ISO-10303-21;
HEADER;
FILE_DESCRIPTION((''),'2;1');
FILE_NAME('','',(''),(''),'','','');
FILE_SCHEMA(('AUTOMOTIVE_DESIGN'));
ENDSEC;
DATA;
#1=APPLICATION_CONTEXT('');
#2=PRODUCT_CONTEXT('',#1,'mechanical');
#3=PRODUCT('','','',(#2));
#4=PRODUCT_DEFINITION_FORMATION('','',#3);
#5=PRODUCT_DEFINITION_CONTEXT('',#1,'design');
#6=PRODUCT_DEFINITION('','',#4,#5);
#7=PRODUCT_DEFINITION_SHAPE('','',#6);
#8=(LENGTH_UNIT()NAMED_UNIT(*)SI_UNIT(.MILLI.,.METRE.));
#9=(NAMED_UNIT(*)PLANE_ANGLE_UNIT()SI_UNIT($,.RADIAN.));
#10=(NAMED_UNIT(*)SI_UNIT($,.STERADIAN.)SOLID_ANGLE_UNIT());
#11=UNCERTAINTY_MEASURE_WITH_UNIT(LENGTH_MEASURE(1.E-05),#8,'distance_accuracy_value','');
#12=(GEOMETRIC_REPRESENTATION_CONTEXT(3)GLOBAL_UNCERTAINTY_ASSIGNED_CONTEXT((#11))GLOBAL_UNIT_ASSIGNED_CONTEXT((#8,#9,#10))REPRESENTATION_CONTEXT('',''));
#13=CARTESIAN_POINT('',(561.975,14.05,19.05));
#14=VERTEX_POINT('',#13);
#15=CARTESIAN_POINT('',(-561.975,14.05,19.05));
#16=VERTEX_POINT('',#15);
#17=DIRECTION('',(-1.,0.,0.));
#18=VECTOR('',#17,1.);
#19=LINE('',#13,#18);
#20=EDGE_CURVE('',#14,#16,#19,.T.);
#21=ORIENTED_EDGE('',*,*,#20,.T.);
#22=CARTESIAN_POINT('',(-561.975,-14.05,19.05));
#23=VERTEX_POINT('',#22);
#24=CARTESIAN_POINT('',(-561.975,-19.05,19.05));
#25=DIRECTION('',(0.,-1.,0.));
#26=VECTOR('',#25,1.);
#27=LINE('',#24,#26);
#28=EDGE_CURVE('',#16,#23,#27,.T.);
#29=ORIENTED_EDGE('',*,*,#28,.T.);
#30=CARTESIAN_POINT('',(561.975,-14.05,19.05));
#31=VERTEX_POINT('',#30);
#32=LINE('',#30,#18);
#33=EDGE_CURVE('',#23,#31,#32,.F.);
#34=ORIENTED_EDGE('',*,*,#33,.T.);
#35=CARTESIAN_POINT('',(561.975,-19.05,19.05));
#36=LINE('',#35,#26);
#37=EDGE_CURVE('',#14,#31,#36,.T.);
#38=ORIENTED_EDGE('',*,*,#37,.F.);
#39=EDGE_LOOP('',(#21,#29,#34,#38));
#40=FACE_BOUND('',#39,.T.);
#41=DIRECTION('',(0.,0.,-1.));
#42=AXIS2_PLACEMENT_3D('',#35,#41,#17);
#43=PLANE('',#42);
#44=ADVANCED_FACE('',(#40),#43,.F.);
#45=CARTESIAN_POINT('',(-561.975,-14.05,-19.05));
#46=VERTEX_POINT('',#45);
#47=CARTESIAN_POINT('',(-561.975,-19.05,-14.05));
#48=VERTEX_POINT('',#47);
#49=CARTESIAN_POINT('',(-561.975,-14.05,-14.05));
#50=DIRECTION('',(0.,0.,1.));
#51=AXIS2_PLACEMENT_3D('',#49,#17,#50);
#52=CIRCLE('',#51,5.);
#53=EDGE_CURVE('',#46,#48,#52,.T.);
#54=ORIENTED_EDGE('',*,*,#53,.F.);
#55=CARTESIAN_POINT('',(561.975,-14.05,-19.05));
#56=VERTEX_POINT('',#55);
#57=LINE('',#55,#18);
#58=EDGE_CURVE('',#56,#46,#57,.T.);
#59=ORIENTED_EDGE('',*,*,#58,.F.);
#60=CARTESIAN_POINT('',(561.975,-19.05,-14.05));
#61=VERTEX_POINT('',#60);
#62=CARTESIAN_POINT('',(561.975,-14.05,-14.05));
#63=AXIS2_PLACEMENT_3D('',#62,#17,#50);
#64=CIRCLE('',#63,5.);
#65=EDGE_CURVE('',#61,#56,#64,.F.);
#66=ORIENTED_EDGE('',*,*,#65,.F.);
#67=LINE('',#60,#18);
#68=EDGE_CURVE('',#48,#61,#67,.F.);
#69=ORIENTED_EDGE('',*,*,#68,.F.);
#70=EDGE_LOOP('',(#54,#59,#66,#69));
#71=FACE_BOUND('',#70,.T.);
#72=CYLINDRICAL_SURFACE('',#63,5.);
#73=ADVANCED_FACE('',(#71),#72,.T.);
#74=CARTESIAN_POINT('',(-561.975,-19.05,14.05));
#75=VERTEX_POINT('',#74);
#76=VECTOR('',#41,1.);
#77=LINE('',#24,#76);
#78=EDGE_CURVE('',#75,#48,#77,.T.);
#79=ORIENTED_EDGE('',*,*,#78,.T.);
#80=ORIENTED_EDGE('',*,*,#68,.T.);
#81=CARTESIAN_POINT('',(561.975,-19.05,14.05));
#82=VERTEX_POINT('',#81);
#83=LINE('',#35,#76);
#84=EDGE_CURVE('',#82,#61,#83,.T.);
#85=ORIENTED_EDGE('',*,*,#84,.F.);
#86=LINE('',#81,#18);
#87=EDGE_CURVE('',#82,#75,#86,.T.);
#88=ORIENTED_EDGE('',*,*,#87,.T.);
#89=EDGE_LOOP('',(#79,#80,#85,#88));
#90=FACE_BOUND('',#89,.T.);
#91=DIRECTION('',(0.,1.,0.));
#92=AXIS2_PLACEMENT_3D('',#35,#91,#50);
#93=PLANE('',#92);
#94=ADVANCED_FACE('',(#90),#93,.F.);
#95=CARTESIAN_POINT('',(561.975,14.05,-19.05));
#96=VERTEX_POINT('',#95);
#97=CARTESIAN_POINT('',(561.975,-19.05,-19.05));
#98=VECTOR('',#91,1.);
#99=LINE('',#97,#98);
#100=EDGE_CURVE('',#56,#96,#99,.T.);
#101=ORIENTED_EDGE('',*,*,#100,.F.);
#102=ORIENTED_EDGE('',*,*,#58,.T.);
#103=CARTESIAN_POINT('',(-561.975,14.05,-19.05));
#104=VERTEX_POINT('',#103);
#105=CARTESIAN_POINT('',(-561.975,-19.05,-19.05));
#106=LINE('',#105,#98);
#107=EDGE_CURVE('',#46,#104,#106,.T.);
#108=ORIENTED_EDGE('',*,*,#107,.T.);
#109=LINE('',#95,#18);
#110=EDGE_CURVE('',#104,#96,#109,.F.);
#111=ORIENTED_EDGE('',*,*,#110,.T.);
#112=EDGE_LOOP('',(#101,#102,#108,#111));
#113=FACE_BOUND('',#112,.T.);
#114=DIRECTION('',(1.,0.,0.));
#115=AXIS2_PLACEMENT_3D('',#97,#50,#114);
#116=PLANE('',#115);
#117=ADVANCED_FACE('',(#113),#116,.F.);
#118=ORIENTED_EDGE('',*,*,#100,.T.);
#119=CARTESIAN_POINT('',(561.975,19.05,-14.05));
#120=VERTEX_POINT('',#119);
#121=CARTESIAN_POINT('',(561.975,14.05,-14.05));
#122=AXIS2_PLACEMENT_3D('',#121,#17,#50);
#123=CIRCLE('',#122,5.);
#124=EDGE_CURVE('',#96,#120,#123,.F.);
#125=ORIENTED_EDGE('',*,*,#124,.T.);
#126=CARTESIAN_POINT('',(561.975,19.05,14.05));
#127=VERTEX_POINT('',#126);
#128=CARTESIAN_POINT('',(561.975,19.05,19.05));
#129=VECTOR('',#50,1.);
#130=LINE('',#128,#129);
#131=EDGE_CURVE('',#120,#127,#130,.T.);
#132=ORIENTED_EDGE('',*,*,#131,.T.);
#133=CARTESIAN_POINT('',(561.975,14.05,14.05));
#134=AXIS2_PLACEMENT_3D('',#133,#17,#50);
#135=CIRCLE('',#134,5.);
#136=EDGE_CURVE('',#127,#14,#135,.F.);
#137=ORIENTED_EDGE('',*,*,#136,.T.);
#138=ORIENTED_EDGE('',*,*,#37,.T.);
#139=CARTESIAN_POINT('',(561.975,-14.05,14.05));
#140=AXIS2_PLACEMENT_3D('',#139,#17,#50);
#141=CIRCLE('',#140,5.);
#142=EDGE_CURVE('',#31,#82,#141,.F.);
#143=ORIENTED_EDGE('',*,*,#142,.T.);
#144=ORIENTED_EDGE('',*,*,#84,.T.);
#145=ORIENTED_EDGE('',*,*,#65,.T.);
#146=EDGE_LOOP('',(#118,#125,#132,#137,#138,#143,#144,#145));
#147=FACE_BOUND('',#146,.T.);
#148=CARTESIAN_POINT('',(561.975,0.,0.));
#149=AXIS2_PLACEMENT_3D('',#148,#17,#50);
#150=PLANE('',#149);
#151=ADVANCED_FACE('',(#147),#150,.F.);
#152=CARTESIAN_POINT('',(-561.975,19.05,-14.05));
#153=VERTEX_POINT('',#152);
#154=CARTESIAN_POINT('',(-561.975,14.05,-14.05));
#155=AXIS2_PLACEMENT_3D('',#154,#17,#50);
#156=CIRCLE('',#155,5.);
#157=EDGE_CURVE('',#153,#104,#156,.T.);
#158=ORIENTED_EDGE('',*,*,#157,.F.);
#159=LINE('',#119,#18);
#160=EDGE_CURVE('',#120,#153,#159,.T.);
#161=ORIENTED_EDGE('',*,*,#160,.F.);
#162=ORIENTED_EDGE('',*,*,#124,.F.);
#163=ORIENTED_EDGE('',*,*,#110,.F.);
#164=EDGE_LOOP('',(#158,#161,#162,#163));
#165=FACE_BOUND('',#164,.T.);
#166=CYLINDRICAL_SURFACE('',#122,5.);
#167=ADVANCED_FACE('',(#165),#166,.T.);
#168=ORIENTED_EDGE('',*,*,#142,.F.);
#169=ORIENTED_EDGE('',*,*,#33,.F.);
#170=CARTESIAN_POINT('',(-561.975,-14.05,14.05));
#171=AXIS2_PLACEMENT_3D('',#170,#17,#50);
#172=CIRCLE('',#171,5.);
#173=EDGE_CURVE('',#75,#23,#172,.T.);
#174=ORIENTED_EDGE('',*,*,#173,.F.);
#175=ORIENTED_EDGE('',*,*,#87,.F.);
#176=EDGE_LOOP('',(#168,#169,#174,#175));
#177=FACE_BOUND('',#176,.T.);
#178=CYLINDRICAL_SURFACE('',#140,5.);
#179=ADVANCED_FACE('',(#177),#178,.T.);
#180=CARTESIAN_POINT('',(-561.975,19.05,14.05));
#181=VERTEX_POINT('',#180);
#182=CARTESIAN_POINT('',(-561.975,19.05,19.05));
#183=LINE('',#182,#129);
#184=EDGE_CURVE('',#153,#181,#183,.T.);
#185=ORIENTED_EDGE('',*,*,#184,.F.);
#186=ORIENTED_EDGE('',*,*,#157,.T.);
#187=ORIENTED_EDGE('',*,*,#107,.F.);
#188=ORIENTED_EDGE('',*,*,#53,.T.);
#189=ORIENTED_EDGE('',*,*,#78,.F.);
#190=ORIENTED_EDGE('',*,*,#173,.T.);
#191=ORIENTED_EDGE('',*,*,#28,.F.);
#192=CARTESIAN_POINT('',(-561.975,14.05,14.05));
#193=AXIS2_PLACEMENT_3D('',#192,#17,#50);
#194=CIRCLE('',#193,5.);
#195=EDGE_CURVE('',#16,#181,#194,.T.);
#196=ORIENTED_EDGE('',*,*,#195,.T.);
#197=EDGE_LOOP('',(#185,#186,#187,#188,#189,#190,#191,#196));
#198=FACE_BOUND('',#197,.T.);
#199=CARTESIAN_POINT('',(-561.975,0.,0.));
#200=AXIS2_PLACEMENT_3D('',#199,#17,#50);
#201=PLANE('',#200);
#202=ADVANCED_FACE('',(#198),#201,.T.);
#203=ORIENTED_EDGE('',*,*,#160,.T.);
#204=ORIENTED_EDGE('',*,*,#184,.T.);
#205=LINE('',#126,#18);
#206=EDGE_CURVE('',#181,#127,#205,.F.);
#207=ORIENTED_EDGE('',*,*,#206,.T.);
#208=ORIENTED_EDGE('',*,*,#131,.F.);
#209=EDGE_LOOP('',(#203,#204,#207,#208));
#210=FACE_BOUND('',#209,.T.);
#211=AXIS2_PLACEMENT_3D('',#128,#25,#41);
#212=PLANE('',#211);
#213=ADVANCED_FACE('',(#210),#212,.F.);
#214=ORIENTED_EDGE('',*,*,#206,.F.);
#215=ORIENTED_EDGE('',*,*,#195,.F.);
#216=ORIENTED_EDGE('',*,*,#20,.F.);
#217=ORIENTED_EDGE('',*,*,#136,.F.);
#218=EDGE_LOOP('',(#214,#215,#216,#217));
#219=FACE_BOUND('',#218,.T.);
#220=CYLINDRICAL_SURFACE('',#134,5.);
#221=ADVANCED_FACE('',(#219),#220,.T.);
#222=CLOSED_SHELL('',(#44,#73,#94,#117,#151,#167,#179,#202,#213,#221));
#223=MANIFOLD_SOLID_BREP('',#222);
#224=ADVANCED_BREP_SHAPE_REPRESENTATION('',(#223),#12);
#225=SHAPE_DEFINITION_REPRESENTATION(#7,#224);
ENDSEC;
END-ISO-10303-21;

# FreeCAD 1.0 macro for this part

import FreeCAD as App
import Part
import Sketcher
Q = App.Units.Quantity


def edges_at(feature, points):
    """Names of the edges that pass closest to the given points."""
    edges = feature.Shape.Edges
    near = lambda p: min(range(len(edges)), key=lambda i: edges[i].distToShape(Part.Vertex(*p))[0])
    return sorted({f"Edge{near(p) + 1}" for p in points})

doc = App.newDocument("Part")
body = doc.addObject("PartDesign::Body", "Body")

sketch1 = doc.addObject("Sketcher::SketchObject", "Sketch")
body.addObject(sketch1)
sketch1.AttachmentSupport = (doc.YZ_Plane, [""])
sketch1.MapMode = "FlatFace"
sketch1.addGeometry(Part.LineSegment(App.Vector(19, 19, 0), App.Vector(-19, 19, 0)), False)
sketch1.addGeometry(Part.LineSegment(App.Vector(-19, 19, 0), App.Vector(-19, -19, 0)), False)
sketch1.addGeometry(Part.LineSegment(App.Vector(-19, -19, 0), App.Vector(19, -19, 0)), False)
sketch1.addGeometry(Part.LineSegment(App.Vector(19, -19, 0), App.Vector(19, 19, 0)), False)
sketch1.addConstraint(Sketcher.Constraint("Coincident", 0, 2, 1, 1))
sketch1.addConstraint(Sketcher.Constraint("Coincident", 1, 2, 2, 1))
sketch1.addConstraint(Sketcher.Constraint("Coincident", 2, 2, 3, 1))
sketch1.addConstraint(Sketcher.Constraint("Coincident", 3, 2, 0, 1))
sketch1.addConstraint(Sketcher.Constraint("Horizontal", 0))
sketch1.addConstraint(Sketcher.Constraint("Vertical", 1))
sketch1.addConstraint(Sketcher.Constraint("Horizontal", 2))
sketch1.addConstraint(Sketcher.Constraint("Vertical", 3))
sketch1.addConstraint(Sketcher.Constraint("Symmetric", 0, 2, 2, 2, -1, 1))
sketch1.addConstraint(Sketcher.Constraint("Equal", 2, 1))
sketch1.addConstraint(Sketcher.Constraint("DistanceX", 0, 2, 0, 1, Q("1.5 in")))
pad1 = doc.addObject("PartDesign::Pad", "Pad")
body.addObject(pad1)
pad1.Profile = sketch1
pad1.Length = Q("44.25 in")
pad1.Midplane = True
doc.recompute()

fillet = doc.addObject("PartDesign::Fillet", "Fillet")
body.addObject(fillet)
fillet.Base = (pad1, edges_at(pad1, [
    (0, -19.05, -19.05),
    (0, -19.05, 19.05),
    (0, 19.05, 19.05),
    (0, 19.05, -19.05),
]))
fillet.Radius = 5

doc.recompute()
